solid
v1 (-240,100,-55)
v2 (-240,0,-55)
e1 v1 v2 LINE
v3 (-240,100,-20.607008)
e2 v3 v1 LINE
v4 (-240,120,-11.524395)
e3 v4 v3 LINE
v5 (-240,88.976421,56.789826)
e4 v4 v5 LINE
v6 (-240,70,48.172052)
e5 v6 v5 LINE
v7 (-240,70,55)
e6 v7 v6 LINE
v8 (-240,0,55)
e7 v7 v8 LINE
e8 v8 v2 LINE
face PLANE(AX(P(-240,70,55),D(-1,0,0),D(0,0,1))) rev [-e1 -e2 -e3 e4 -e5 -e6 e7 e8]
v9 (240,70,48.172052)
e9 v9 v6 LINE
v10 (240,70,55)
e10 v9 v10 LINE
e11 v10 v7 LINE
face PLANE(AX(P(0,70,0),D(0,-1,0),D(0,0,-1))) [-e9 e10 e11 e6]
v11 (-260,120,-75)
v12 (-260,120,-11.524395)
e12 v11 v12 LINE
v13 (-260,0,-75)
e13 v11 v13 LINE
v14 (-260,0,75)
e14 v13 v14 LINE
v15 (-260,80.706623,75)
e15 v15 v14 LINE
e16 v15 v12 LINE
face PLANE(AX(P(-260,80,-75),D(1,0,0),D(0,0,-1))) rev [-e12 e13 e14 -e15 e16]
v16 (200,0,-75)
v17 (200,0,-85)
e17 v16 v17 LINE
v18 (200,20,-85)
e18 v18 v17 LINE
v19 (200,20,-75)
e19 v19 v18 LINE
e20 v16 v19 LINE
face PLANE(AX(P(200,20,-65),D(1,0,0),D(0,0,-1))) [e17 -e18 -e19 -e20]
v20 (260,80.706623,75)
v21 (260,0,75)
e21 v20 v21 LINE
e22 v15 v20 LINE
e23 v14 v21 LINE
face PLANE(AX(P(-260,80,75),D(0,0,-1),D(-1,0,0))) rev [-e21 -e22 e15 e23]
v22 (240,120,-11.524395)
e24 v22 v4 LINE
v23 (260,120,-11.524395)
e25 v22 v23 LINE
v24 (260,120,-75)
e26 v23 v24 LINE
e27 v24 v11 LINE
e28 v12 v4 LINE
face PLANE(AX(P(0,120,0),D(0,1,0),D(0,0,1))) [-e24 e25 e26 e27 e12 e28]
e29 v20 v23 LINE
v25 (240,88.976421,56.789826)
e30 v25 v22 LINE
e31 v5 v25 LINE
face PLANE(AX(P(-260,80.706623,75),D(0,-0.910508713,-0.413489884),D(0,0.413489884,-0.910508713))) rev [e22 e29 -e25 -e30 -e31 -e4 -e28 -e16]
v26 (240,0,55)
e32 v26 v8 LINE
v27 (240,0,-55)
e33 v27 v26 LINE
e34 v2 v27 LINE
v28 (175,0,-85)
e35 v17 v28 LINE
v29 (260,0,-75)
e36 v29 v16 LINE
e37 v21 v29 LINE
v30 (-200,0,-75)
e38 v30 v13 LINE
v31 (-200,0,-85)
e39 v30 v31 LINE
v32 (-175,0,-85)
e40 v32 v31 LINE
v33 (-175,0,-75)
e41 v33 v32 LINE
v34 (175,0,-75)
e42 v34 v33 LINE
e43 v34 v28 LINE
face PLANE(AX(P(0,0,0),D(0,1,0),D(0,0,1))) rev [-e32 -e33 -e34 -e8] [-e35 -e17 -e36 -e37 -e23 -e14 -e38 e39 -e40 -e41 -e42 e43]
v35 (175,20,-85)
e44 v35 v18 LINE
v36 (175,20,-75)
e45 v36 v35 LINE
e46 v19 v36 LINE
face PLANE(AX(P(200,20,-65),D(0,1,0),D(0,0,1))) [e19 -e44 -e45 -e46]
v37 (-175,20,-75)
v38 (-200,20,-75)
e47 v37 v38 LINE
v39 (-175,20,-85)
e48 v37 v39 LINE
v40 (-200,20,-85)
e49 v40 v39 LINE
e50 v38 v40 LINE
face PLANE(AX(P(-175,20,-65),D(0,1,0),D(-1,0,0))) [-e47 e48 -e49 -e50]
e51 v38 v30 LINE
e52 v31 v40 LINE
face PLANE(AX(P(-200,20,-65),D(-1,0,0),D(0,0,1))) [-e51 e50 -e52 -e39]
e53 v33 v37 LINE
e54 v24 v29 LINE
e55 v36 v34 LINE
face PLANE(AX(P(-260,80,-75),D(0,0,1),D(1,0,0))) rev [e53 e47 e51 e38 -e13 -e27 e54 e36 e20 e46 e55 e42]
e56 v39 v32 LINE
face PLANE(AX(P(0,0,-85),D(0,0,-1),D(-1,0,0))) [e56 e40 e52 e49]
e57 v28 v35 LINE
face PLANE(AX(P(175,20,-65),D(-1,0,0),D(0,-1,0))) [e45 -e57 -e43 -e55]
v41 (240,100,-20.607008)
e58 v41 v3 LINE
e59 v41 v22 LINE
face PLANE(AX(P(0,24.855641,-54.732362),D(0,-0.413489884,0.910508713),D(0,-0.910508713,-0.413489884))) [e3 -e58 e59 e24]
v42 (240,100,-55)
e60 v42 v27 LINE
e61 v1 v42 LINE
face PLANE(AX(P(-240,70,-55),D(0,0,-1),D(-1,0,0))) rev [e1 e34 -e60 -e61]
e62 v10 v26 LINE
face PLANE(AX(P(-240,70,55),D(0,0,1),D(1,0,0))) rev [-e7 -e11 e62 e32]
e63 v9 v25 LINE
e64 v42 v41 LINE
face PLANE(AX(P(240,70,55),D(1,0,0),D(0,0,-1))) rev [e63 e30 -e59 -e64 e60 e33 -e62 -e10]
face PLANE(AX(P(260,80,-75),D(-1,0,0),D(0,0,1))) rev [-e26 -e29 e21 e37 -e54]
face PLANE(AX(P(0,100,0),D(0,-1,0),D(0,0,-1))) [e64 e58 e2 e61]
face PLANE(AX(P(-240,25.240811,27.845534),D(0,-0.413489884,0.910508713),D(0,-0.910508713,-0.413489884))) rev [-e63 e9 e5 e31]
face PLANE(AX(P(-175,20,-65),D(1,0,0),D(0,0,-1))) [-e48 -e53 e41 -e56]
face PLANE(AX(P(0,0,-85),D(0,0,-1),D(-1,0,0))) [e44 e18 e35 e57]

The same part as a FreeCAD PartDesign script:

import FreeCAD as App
import Part
import Sketcher
from FreeCAD import Vector
Q = App.Units.Quantity


def add_polygon(sketch, points):
    """Adds a closed chain of lines whose ends are joined by coincident constraints."""
    first, n = sketch.GeometryCount, len(points)
    for a, b in zip(points, points[1:] + points[:1]):
        sketch.addGeometry(Part.LineSegment(App.Vector(*a, 0), App.Vector(*b, 0)), False)
    for i in range(n):
        sketch.addConstraint(Sketcher.Constraint("Coincident", first + i, 2, first + (i + 1) % n, 1))

doc = App.newDocument("Part")
body = doc.addObject("PartDesign::Body", "Body")

# Sketch on XZ plane
sketch1 = doc.addObject("Sketcher::SketchObject", "Sketch")
body.addObject(sketch1)
sketch1.AttachmentSupport = (doc.XZ_Plane, [""])
sketch1.MapMode = "FlatFace"
add_polygon(sketch1, [(-260, -75), (-260, 75), (260, 75), (260, -75)])  # lines 0-3
sketch1.addConstraint([
    Sketcher.Constraint("Vertical", 0),
    Sketcher.Constraint("Horizontal", 1),
    Sketcher.Constraint("Vertical", 2),
    Sketcher.Constraint("Horizontal", 3),
    Sketcher.Constraint("Symmetric", 0, 2, 2, 2, -1, 1),
    Sketcher.Constraint("DistanceX", 1, 1, 1, 2, Q("520 mm")),
    Sketcher.Constraint("DistanceY", 0, 1, 0, 2, Q("150 mm")),
])
pad1 = doc.addObject("PartDesign::Pad", "Pad")
body.addObject(pad1)
pad1.Profile = sketch1
pad1.Length = 80
pad1.Reversed = True

# Sketch on XZ plane
sketch2 = doc.addObject("Sketcher::SketchObject", "Sketch001")
body.addObject(sketch2)
sketch2.AttachmentSupport = (doc.XZ_Plane, [""])
sketch2.MapMode = "FlatFace"
sketch2.AttachmentOffset = App.Placement(Vector(0, 0, -80), App.Rotation())
add_polygon(sketch2, [(-260, -75), (-260, 75), (260, 75), (260, -75)])  # lines 0-3
sketch2.addConstraint([
    Sketcher.Constraint("Vertical", 0),
    Sketcher.Constraint("Horizontal", 1),
    Sketcher.Constraint("Vertical", 2),
    Sketcher.Constraint("Horizontal", 3),
    Sketcher.Constraint("Symmetric", 0, 2, 2, 2, -1, 1),
    Sketcher.Constraint("DistanceX", 1, 1, 1, 2, Q("520 mm")),
    Sketcher.Constraint("DistanceY", 0, 1, 0, 2, Q("150 mm")),
])
pad2 = doc.addObject("PartDesign::Pad", "Pad001")
body.addObject(pad2)
pad2.Profile = sketch2
pad2.Length = 40
pad2.Reversed = True

# Sketch on YZ plane
sketch3 = doc.addObject("Sketcher::SketchObject", "Sketch002")
body.addObject(sketch3)
sketch3.AttachmentSupport = (doc.YZ_Plane, [""])
sketch3.MapMode = "FlatFace"
sketch3.AttachmentOffset = App.Placement(Vector(0, 0, 260), App.Rotation())
add_polygon(sketch3, [(81, 75), (120, -12), (120, 75)])  # lines 0-2
sketch3.addConstraint([
    Sketcher.Constraint("Vertical", 1),
    Sketcher.Constraint("Horizontal", 2),
    Sketcher.Constraint("DistanceX", -1, 1, 0, 2, Q("120 mm")),
    Sketcher.Constraint("DistanceY", -1, 1, 1, 2, Q("75 mm")),
    Sketcher.Constraint("Distance", 0, Q("95.02863 mm")),
    Sketcher.Constraint("DistanceX", 2, 2, 2, 1, Q("39.293377 mm")),
])
pocket1 = doc.addObject("PartDesign::Pocket", "Pocket")
body.addObject(pocket1)
pocket1.Profile = sketch3
pocket1.Type = "ThroughAll"

# Sketch on XZ plane
sketch4 = doc.addObject("Sketcher::SketchObject", "Sketch003")
body.addObject(sketch4)
sketch4.AttachmentSupport = (doc.XZ_Plane, [""])
sketch4.MapMode = "FlatFace"
add_polygon(sketch4, [(240, -55), (240, 55), (-240, 55), (-240, -55)])  # lines 0-3
sketch4.addConstraint([
    Sketcher.Constraint("Vertical", 0),
    Sketcher.Constraint("Horizontal", 1),
    Sketcher.Constraint("Vertical", 2),
    Sketcher.Constraint("Horizontal", 3),
    Sketcher.Constraint("Symmetric", 0, 2, 2, 2, -1, 1),
    Sketcher.Constraint("DistanceX", 1, 2, 1, 1, Q("480 mm")),
    Sketcher.Constraint("DistanceY", 0, 1, 0, 2, Q("110 mm")),
])
pocket2 = doc.addObject("PartDesign::Pocket", "Pocket001")
body.addObject(pocket2)
pocket2.Profile = sketch4
pocket2.Length = 70

# Sketch on an angled plane
sketch5 = doc.addObject("Sketcher::SketchObject", "Sketch004")
body.addObject(sketch5)
sketch5.Placement = App.Placement(Vector(0, 95.144359, 43.207966), App.Rotation(Vector(1, 0, 0), Vector(0, 0.413489884, -0.910508713), Vector(0, 0.910508713, 0.413489884), "ZXY"))
add_polygon(sketch5, [(-240, 40), (-240, -15), (240, -15), (240, 40)])  # lines 0-3
sketch5.addConstraint([
    Sketcher.Constraint("Vertical", 0),
    Sketcher.Constraint("Horizontal", 1),
    Sketcher.Constraint("Vertical", 2),
    Sketcher.Constraint("Horizontal", 3),
    Sketcher.Constraint("DistanceX", 1, 1, 1, 2, Q("480 mm")),
    Sketcher.Constraint("DistanceX", 0, 2, -1, 1, Q("240 mm")),
    Sketcher.Constraint("DistanceY", 0, 2, 0, 1, Q("55.02863 mm")),
    Sketcher.Constraint("DistanceY", 0, 2, -1, 1, Q("14.916781 mm")),
])
pocket3 = doc.addObject("PartDesign::Pocket", "Pocket002")
body.addObject(pocket3)
pocket3.Profile = sketch5
pocket3.Length = 70

# Sketch on XZ plane
sketch6 = doc.addObject("Sketcher::SketchObject", "Sketch005")
body.addObject(sketch6)
sketch6.AttachmentSupport = (doc.XZ_Plane, [""])
sketch6.MapMode = "FlatFace"
sketch6.AttachmentOffset = App.Placement(Vector(0, 0, -70), App.Rotation())
add_polygon(sketch6, [(-240, -12), (-240, -55), (240, -55), (240, -12)])  # lines 0-3
sketch6.addConstraint([
    Sketcher.Constraint("Vertical", 0),
    Sketcher.Constraint("Horizontal", 1),
    Sketcher.Constraint("Vertical", 2),
    Sketcher.Constraint("Horizontal", 3),
    Sketcher.Constraint("DistanceX", 1, 1, 1, 2, Q("480 mm")),
    Sketcher.Constraint("DistanceX", 0, 2, -1, 1, Q("240 mm")),
    Sketcher.Constraint("DistanceY", 0, 2, -1, 1, Q("55 mm")),
    Sketcher.Constraint("DistanceY", 0, 2, 0, 1, Q("42.734816 mm")),
])
pocket4 = doc.addObject("PartDesign::Pocket", "Pocket003")
body.addObject(pocket4)
pocket4.Profile = sketch6
pocket4.Length = 30

# Sketch on an angled plane
sketch7 = doc.addObject("Sketcher::SketchObject", "Sketch006")
body.addObject(sketch7)
sketch7.Placement = App.Placement(Vector(0, 16.585844, -36.522188), App.Rotation(Vector(1, 0, 0), Vector(0, 0.910508713, 0.413489884), Vector(0, -0.413489884, 0.910508713), "ZXY"))
add_polygon(sketch7, [(-240, 104), (-240, 59), (240, 59), (240, 104)])  # lines 0-3
sketch7.addConstraint([
    Sketcher.Constraint("Vertical", 0),
    Sketcher.Constraint("Horizontal", 1),
    Sketcher.Constraint("Vertical", 2),
    Sketcher.Constraint("Horizontal", 3),
    Sketcher.Constraint("DistanceX", 1, 1, 1, 2, Q("480 mm")),
    Sketcher.Constraint("DistanceX", 0, 2, -1, 1, Q("240 mm")),
    Sketcher.Constraint("DistanceY", 0, 2, 0, 1, Q("45.831744 mm")),
    Sketcher.Constraint("DistanceY", -1, 1, 0, 2, Q("58.664081 mm")),
])
pocket5 = doc.addObject("PartDesign::Pocket", "Pocket004")
body.addObject(pocket5)
pocket5.Profile = sketch7
pocket5.Length = 20

# Sketch on XY plane
sketch8 = doc.addObject("Sketcher::SketchObject", "Sketch007")
body.addObject(sketch8)
sketch8.AttachmentSupport = (doc.XY_Plane, [""])
sketch8.MapMode = "FlatFace"
sketch8.AttachmentOffset = App.Placement(Vector(0, 0, -85), App.Rotation())
add_polygon(sketch8, [(200, 20), (200, 0), (175, 0), (175, 20)])  # lines 0-3
sketch8.addConstraint([
    Sketcher.Constraint("Vertical", 0),
    Sketcher.Constraint("Horizontal", 1),
    Sketcher.Constraint("Vertical", 2),
    Sketcher.Constraint("Horizontal", 3),
    Sketcher.Constraint("PointOnObject", 0, 2, -1),
    Sketcher.Constraint("DistanceX", 1, 2, 1, 1, Q("25 mm")),
    Sketcher.Constraint("DistanceY", 0, 2, 0, 1, Q("20 mm")),
    Sketcher.Constraint("DistanceX", -1, 1, 0, 2, Q("200 mm")),
])
pad3 = doc.addObject("PartDesign::Pad", "Pad002")
body.addObject(pad3)
pad3.Profile = sketch8
pad3.Length = 20

# Sketch on XY plane
sketch9 = doc.addObject("Sketcher::SketchObject", "Sketch008")
body.addObject(sketch9)
sketch9.AttachmentSupport = (doc.XY_Plane, [""])
sketch9.MapMode = "FlatFace"
sketch9.AttachmentOffset = App.Placement(Vector(0, 0, -85), App.Rotation())
add_polygon(sketch9, [(-175, 20), (-175, 0), (-200, 0), (-200, 20)])  # lines 0-3
sketch9.addConstraint([
    Sketcher.Constraint("Vertical", 0),
    Sketcher.Constraint("Horizontal", 1),
    Sketcher.Constraint("Vertical", 2),
    Sketcher.Constraint("Horizontal", 3),
    Sketcher.Constraint("PointOnObject", 0, 2, -1),
    Sketcher.Constraint("DistanceX", 1, 2, 1, 1, Q("25 mm")),
    Sketcher.Constraint("DistanceY", 0, 2, 0, 1, Q("20 mm")),
    Sketcher.Constraint("DistanceX", 0, 2, -1, 1, Q("175 mm")),
])
pad4 = doc.addObject("PartDesign::Pad", "Pad003")
body.addObject(pad4)
pad4.Profile = sketch9
pad4.Length = 20

doc.recompute()
